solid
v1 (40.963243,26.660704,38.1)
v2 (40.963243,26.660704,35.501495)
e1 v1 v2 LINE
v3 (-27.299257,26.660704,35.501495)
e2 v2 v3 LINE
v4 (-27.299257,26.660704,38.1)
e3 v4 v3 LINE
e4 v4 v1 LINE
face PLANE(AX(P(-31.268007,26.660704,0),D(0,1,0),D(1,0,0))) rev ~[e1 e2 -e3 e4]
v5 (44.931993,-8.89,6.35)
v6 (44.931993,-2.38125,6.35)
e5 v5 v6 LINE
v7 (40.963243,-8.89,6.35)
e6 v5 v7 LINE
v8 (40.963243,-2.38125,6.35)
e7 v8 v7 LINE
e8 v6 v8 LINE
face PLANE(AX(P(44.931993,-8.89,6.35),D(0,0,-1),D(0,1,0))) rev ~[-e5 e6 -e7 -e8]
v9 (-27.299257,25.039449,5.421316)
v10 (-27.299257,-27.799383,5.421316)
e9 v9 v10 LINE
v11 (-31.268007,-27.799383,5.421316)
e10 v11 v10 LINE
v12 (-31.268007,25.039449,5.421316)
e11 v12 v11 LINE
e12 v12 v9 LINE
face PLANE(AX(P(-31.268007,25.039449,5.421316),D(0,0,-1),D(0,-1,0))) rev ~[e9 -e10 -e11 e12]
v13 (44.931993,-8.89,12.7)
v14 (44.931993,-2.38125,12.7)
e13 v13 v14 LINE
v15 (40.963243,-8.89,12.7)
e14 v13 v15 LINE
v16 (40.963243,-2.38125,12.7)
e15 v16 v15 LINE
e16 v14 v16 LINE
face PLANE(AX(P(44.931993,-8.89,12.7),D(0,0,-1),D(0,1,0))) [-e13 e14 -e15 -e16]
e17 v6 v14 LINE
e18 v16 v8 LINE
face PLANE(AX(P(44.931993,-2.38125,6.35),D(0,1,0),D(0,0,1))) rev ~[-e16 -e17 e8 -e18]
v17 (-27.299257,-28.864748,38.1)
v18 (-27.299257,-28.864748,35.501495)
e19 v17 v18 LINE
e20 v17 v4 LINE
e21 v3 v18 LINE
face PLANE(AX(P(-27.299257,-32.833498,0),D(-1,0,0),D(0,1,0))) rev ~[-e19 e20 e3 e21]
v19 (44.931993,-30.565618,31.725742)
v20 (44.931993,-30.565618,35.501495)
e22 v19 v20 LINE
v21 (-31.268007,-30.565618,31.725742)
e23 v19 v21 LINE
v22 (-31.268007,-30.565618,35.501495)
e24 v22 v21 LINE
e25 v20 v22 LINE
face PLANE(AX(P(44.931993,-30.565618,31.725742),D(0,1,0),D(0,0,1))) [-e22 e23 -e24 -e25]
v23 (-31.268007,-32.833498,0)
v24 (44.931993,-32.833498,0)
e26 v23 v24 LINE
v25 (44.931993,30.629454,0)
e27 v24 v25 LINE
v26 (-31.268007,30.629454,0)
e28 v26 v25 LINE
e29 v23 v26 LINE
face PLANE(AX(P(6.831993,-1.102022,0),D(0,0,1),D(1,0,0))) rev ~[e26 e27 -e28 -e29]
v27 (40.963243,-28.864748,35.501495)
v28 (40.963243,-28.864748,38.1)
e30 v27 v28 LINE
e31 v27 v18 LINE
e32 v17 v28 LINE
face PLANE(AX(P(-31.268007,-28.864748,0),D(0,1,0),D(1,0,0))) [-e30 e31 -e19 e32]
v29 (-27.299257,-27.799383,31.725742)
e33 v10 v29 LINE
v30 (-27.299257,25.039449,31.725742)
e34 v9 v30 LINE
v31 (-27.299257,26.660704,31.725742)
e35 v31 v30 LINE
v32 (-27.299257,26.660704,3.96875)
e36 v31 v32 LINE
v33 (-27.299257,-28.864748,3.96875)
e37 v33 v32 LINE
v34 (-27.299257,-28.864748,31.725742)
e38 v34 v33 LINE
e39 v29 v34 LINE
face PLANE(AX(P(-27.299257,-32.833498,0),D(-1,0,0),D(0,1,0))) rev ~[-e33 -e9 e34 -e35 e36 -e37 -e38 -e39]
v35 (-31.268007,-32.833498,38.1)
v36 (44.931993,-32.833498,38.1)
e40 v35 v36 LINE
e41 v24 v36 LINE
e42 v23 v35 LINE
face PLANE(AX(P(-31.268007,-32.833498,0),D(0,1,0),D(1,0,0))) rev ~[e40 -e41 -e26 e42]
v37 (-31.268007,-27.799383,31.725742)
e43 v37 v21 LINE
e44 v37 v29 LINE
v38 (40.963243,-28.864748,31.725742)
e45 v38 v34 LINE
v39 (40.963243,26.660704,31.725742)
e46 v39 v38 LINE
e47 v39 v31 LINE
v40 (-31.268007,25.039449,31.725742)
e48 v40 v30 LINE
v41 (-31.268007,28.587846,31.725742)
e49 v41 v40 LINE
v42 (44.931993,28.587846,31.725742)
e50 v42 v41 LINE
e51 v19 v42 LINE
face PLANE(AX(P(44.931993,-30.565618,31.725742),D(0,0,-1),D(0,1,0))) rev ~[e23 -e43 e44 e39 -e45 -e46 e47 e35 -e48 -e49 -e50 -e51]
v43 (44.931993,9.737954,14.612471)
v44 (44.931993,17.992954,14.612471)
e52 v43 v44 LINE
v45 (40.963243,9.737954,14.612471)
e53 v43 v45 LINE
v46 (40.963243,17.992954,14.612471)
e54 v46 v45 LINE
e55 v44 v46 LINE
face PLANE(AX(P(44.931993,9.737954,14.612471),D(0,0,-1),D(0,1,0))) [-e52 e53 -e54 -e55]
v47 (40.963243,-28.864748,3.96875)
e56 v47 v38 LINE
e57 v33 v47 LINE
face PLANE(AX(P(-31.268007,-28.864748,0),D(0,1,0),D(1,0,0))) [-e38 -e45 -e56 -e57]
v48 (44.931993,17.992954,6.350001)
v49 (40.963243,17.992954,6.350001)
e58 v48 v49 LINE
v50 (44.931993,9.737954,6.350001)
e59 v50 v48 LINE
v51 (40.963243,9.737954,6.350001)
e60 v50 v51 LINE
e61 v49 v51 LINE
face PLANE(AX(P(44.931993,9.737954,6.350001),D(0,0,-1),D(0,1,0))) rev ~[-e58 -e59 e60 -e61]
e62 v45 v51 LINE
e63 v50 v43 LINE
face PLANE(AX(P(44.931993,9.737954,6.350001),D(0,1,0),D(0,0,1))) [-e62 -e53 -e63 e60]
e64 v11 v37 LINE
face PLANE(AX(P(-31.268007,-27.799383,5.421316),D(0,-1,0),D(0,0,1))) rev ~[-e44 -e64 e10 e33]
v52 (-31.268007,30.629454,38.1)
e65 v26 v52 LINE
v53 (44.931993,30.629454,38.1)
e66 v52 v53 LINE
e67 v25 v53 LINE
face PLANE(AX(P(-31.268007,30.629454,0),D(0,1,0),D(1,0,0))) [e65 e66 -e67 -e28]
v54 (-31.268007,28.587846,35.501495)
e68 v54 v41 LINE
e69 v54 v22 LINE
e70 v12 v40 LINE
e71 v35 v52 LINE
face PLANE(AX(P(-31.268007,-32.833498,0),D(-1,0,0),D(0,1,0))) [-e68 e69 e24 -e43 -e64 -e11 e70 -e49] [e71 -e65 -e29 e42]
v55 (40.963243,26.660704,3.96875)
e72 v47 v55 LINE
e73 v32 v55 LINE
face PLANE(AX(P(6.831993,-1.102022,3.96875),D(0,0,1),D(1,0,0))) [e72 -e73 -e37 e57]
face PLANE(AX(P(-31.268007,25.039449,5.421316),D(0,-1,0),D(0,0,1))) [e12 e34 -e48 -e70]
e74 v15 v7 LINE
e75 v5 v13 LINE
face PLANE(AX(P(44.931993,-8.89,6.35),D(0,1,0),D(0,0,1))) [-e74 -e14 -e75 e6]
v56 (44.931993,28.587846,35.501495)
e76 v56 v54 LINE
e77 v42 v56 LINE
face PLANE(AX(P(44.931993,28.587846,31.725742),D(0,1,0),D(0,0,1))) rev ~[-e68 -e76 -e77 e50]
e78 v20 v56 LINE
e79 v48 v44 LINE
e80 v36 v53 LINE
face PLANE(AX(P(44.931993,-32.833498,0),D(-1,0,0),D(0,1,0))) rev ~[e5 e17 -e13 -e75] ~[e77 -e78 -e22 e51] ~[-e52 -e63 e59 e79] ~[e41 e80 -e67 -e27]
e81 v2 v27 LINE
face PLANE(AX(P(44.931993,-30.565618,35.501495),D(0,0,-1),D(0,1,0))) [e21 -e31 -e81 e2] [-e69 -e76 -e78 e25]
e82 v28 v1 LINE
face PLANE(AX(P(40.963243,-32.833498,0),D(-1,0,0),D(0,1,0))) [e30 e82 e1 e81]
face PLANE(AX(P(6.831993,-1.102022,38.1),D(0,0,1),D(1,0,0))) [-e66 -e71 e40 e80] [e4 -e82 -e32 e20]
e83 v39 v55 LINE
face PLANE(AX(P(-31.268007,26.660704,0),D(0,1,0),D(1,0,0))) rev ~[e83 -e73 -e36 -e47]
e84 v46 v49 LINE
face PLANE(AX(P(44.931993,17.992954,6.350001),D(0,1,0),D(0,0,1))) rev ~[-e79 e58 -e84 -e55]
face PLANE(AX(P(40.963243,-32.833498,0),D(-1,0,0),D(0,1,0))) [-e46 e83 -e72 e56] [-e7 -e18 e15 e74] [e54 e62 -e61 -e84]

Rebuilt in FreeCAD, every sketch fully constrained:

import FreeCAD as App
import Part
import Sketcher
Q = App.Units.Quantity


def faces_at(feature, points):
    """Names of the faces that lie closest to the given points."""
    faces = feature.Shape.Faces
    near = lambda p: min(range(len(faces)), key=lambda i: faces[i].distToShape(Part.Vertex(*p))[0])
    return sorted({f"Face{near(p) + 1}" for p in points})

doc = App.newDocument("Part")
body = doc.addObject("PartDesign::Body", "Body")

sketch1 = body.newObject("Sketcher::SketchObject", "Sketch")
sketch1.AttachmentSupport = (doc.getObject("XY_Plane"), [""])
sketch1.MapMode = "FlatFace"
sketch1.addGeometry(Part.LineSegment(App.Vector(-31, 31, 0), App.Vector(-31, -33, 0)), False)
sketch1.addGeometry(Part.LineSegment(App.Vector(-31, -33, 0), App.Vector(45, -33, 0)), False)
sketch1.addGeometry(Part.LineSegment(App.Vector(45, -33, 0), App.Vector(45, 31, 0)), False)
sketch1.addGeometry(Part.LineSegment(App.Vector(45, 31, 0), App.Vector(-31, 31, 0)), False)
sketch1.addConstraint(Sketcher.Constraint("Coincident", 0, 2, 1, 1))
sketch1.addConstraint(Sketcher.Constraint("Coincident", 1, 2, 2, 1))
sketch1.addConstraint(Sketcher.Constraint("Coincident", 2, 2, 3, 1))
sketch1.addConstraint(Sketcher.Constraint("Coincident", 3, 2, 0, 1))
sketch1.addConstraint(Sketcher.Constraint("Vertical", 0))
sketch1.addConstraint(Sketcher.Constraint("Horizontal", 1))
sketch1.addConstraint(Sketcher.Constraint("Vertical", 2))
sketch1.addConstraint(Sketcher.Constraint("Horizontal", 3))
sketch1.addConstraint(Sketcher.Constraint("DistanceX", 1, 1, 1, 2, Q("3 in")))
sketch1.addConstraint(Sketcher.Constraint("DistanceY", 0, 2, 0, 1, Q("63.462952 mm")))
sketch1.addConstraint(Sketcher.Constraint("DistanceX", 0, 2, -1, 1, Q("31.268007 mm")))
sketch1.addConstraint(Sketcher.Constraint("DistanceY", 0, 2, -1, 1, Q("32.833498 mm")))
pad1 = body.newObject("PartDesign::Pad", "Pad")
pad1.Profile = sketch1
pad1.Length = Q("1.5 in")
doc.recompute()

thickness = body.newObject("PartDesign::Thickness", "Thickness")
thickness.Base = (pad1, faces_at(pad1, [(6.832, -1.102, 38.1)]))
thickness.Value = Q("0.15625 in")
thickness.Reversed = True
thickness.Join = "Arc"

sketch2 = body.newObject("Sketcher::SketchObject", "Sketch001")
sketch2.AttachmentSupport = (doc.getObject("YZ_Plane"), [""])
sketch2.MapMode = "FlatFace"
sketch2.AttachmentOffset = App.Placement(App.Vector(0, 0, 44.931993), App.Rotation())
sketch2.addGeometry(Part.LineSegment(App.Vector(-30.6, 35.5, 0), App.Vector(-30.6, 31.7, 0)), False)
sketch2.addGeometry(Part.LineSegment(App.Vector(-30.6, 31.7, 0), App.Vector(28.6, 31.7, 0)), False)
sketch2.addGeometry(Part.LineSegment(App.Vector(28.6, 31.7, 0), App.Vector(28.6, 35.5, 0)), False)
sketch2.addGeometry(Part.LineSegment(App.Vector(28.6, 35.5, 0), App.Vector(-30.6, 35.5, 0)), False)
sketch2.addConstraint(Sketcher.Constraint("Coincident", 0, 2, 1, 1))
sketch2.addConstraint(Sketcher.Constraint("Coincident", 1, 2, 2, 1))
sketch2.addConstraint(Sketcher.Constraint("Coincident", 2, 2, 3, 1))
sketch2.addConstraint(Sketcher.Constraint("Coincident", 3, 2, 0, 1))
sketch2.addConstraint(Sketcher.Constraint("Vertical", 0))
sketch2.addConstraint(Sketcher.Constraint("Horizontal", 1))
sketch2.addConstraint(Sketcher.Constraint("Vertical", 2))
sketch2.addConstraint(Sketcher.Constraint("Horizontal", 3))
sketch2.addConstraint(Sketcher.Constraint("DistanceX", 1, 1, 1, 2, Q("59.153464 mm")))
sketch2.addConstraint(Sketcher.Constraint("DistanceY", 0, 2, 0, 1, Q("3.775753 mm")))
sketch2.addConstraint(Sketcher.Constraint("DistanceX", 0, 2, -1, 1, Q("30.565618 mm")))
sketch2.addConstraint(Sketcher.Constraint("DistanceY", -1, 1, 0, 2, Q("31.725742 mm")))
pocket1 = body.newObject("PartDesign::Pocket", "Pocket")
pocket1.Profile = sketch2
pocket1.Length = Q("3.325 in")

sketch3 = body.newObject("Sketcher::SketchObject", "Sketch002")
sketch3.AttachmentSupport = (doc.getObject("YZ_Plane"), [""])
sketch3.MapMode = "FlatFace"
sketch3.AttachmentOffset = App.Placement(App.Vector(0, 0, 44.931993), App.Rotation())
sketch3.addGeometry(Part.LineSegment(App.Vector(10, 15, 0), App.Vector(10, 6, 0)), False)
sketch3.addGeometry(Part.LineSegment(App.Vector(10, 6, 0), App.Vector(18, 6, 0)), False)
sketch3.addGeometry(Part.LineSegment(App.Vector(18, 6, 0), App.Vector(18, 15, 0)), False)
sketch3.addGeometry(Part.LineSegment(App.Vector(18, 15, 0), App.Vector(10, 15, 0)), False)
sketch3.addGeometry(Part.LineSegment(App.Vector(-9, 13, 0), App.Vector(-9, 6, 0)), False)
sketch3.addGeometry(Part.LineSegment(App.Vector(-9, 6, 0), App.Vector(-2, 6, 0)), False)
sketch3.addGeometry(Part.LineSegment(App.Vector(-2, 6, 0), App.Vector(-2, 13, 0)), False)
sketch3.addGeometry(Part.LineSegment(App.Vector(-2, 13, 0), App.Vector(-9, 13, 0)), False)
sketch3.addConstraint(Sketcher.Constraint("Coincident", 0, 2, 1, 1))
sketch3.addConstraint(Sketcher.Constraint("Coincident", 1, 2, 2, 1))
sketch3.addConstraint(Sketcher.Constraint("Coincident", 2, 2, 3, 1))
sketch3.addConstraint(Sketcher.Constraint("Coincident", 3, 2, 0, 1))
sketch3.addConstraint(Sketcher.Constraint("Coincident", 4, 2, 5, 1))
sketch3.addConstraint(Sketcher.Constraint("Coincident", 5, 2, 6, 1))
sketch3.addConstraint(Sketcher.Constraint("Coincident", 6, 2, 7, 1))
sketch3.addConstraint(Sketcher.Constraint("Coincident", 7, 2, 4, 1))
sketch3.addConstraint(Sketcher.Constraint("Vertical", 0))
sketch3.addConstraint(Sketcher.Constraint("Horizontal", 1))
sketch3.addConstraint(Sketcher.Constraint("Vertical", 2))
sketch3.addConstraint(Sketcher.Constraint("Horizontal", 3))
sketch3.addConstraint(Sketcher.Constraint("Vertical", 4))
sketch3.addConstraint(Sketcher.Constraint("Horizontal", 5))
sketch3.addConstraint(Sketcher.Constraint("Vertical", 6))
sketch3.addConstraint(Sketcher.Constraint("Horizontal", 7))
sketch3.addConstraint(Sketcher.Constraint("Horizontal", 1, 2, 4, 2))
sketch3.addConstraint(Sketcher.Constraint("DistanceY", 4, 2, 4, 1, Q("0.25 in")))
sketch3.addConstraint(Sketcher.Constraint("DistanceY", -1, 1, 6, 2, Q("0.5 in")))
sketch3.addConstraint(Sketcher.Constraint("DistanceX", 1, 1, 1, 2, Q("0.325 in")))
sketch3.addConstraint(Sketcher.Constraint("DistanceX", 4, 2, -1, 1, Q("0.35 in")))
sketch3.addConstraint(Sketcher.Constraint("DistanceX", 5, 2, -1, 1, Q("0.09375 in")))
sketch3.addConstraint(Sketcher.Constraint("DistanceY", 0, 2, 0, 1, Q("8.262471 mm")))
sketch3.addConstraint(Sketcher.Constraint("DistanceX", -1, 1, 0, 2, Q("9.737954 mm")))
pocket2 = body.newObject("PartDesign::Pocket", "Pocket001")
pocket2.Profile = sketch3
pocket2.Length = Q("0.25 in")

sketch4 = body.newObject("Sketcher::SketchObject", "Sketch003")
sketch4.AttachmentSupport = (doc.getObject("YZ_Plane"), [""])
sketch4.MapMode = "FlatFace"
sketch4.AttachmentOffset = App.Placement(App.Vector(0, 0, -31.268007), App.Rotation())
sketch4.addGeometry(Part.LineSegment(App.Vector(25, 32, 0), App.Vector(25, 5, 0)), False)
sketch4.addGeometry(Part.LineSegment(App.Vector(25, 5, 0), App.Vector(-28, 5, 0)), False)
sketch4.addGeometry(Part.LineSegment(App.Vector(-28, 5, 0), App.Vector(-28, 32, 0)), False)
sketch4.addGeometry(Part.LineSegment(App.Vector(-28, 32, 0), App.Vector(25, 32, 0)), False)
sketch4.addConstraint(Sketcher.Constraint("Coincident", 0, 2, 1, 1))
sketch4.addConstraint(Sketcher.Constraint("Coincident", 1, 2, 2, 1))
sketch4.addConstraint(Sketcher.Constraint("Coincident", 2, 2, 3, 1))
sketch4.addConstraint(Sketcher.Constraint("Coincident", 3, 2, 0, 1))
sketch4.addConstraint(Sketcher.Constraint("Vertical", 0))
sketch4.addConstraint(Sketcher.Constraint("Horizontal", 1))
sketch4.addConstraint(Sketcher.Constraint("Vertical", 2))
sketch4.addConstraint(Sketcher.Constraint("Horizontal", 3))
sketch4.addConstraint(Sketcher.Constraint("DistanceX", 1, 2, 1, 1, Q("52.838832 mm")))
sketch4.addConstraint(Sketcher.Constraint("DistanceY", 0, 2, 0, 1, Q("26.304427 mm")))
sketch4.addConstraint(Sketcher.Constraint("DistanceX", -1, 1, 0, 2, Q("25.039449 mm")))
sketch4.addConstraint(Sketcher.Constraint("DistanceY", -1, 1, 0, 2, Q("5.421316 mm")))
pocket3 = body.newObject("PartDesign::Pocket", "Pocket002")
pocket3.Profile = sketch4
pocket3.Length = Q("0.25 in")
pocket3.Reversed = True

doc.recompute()
